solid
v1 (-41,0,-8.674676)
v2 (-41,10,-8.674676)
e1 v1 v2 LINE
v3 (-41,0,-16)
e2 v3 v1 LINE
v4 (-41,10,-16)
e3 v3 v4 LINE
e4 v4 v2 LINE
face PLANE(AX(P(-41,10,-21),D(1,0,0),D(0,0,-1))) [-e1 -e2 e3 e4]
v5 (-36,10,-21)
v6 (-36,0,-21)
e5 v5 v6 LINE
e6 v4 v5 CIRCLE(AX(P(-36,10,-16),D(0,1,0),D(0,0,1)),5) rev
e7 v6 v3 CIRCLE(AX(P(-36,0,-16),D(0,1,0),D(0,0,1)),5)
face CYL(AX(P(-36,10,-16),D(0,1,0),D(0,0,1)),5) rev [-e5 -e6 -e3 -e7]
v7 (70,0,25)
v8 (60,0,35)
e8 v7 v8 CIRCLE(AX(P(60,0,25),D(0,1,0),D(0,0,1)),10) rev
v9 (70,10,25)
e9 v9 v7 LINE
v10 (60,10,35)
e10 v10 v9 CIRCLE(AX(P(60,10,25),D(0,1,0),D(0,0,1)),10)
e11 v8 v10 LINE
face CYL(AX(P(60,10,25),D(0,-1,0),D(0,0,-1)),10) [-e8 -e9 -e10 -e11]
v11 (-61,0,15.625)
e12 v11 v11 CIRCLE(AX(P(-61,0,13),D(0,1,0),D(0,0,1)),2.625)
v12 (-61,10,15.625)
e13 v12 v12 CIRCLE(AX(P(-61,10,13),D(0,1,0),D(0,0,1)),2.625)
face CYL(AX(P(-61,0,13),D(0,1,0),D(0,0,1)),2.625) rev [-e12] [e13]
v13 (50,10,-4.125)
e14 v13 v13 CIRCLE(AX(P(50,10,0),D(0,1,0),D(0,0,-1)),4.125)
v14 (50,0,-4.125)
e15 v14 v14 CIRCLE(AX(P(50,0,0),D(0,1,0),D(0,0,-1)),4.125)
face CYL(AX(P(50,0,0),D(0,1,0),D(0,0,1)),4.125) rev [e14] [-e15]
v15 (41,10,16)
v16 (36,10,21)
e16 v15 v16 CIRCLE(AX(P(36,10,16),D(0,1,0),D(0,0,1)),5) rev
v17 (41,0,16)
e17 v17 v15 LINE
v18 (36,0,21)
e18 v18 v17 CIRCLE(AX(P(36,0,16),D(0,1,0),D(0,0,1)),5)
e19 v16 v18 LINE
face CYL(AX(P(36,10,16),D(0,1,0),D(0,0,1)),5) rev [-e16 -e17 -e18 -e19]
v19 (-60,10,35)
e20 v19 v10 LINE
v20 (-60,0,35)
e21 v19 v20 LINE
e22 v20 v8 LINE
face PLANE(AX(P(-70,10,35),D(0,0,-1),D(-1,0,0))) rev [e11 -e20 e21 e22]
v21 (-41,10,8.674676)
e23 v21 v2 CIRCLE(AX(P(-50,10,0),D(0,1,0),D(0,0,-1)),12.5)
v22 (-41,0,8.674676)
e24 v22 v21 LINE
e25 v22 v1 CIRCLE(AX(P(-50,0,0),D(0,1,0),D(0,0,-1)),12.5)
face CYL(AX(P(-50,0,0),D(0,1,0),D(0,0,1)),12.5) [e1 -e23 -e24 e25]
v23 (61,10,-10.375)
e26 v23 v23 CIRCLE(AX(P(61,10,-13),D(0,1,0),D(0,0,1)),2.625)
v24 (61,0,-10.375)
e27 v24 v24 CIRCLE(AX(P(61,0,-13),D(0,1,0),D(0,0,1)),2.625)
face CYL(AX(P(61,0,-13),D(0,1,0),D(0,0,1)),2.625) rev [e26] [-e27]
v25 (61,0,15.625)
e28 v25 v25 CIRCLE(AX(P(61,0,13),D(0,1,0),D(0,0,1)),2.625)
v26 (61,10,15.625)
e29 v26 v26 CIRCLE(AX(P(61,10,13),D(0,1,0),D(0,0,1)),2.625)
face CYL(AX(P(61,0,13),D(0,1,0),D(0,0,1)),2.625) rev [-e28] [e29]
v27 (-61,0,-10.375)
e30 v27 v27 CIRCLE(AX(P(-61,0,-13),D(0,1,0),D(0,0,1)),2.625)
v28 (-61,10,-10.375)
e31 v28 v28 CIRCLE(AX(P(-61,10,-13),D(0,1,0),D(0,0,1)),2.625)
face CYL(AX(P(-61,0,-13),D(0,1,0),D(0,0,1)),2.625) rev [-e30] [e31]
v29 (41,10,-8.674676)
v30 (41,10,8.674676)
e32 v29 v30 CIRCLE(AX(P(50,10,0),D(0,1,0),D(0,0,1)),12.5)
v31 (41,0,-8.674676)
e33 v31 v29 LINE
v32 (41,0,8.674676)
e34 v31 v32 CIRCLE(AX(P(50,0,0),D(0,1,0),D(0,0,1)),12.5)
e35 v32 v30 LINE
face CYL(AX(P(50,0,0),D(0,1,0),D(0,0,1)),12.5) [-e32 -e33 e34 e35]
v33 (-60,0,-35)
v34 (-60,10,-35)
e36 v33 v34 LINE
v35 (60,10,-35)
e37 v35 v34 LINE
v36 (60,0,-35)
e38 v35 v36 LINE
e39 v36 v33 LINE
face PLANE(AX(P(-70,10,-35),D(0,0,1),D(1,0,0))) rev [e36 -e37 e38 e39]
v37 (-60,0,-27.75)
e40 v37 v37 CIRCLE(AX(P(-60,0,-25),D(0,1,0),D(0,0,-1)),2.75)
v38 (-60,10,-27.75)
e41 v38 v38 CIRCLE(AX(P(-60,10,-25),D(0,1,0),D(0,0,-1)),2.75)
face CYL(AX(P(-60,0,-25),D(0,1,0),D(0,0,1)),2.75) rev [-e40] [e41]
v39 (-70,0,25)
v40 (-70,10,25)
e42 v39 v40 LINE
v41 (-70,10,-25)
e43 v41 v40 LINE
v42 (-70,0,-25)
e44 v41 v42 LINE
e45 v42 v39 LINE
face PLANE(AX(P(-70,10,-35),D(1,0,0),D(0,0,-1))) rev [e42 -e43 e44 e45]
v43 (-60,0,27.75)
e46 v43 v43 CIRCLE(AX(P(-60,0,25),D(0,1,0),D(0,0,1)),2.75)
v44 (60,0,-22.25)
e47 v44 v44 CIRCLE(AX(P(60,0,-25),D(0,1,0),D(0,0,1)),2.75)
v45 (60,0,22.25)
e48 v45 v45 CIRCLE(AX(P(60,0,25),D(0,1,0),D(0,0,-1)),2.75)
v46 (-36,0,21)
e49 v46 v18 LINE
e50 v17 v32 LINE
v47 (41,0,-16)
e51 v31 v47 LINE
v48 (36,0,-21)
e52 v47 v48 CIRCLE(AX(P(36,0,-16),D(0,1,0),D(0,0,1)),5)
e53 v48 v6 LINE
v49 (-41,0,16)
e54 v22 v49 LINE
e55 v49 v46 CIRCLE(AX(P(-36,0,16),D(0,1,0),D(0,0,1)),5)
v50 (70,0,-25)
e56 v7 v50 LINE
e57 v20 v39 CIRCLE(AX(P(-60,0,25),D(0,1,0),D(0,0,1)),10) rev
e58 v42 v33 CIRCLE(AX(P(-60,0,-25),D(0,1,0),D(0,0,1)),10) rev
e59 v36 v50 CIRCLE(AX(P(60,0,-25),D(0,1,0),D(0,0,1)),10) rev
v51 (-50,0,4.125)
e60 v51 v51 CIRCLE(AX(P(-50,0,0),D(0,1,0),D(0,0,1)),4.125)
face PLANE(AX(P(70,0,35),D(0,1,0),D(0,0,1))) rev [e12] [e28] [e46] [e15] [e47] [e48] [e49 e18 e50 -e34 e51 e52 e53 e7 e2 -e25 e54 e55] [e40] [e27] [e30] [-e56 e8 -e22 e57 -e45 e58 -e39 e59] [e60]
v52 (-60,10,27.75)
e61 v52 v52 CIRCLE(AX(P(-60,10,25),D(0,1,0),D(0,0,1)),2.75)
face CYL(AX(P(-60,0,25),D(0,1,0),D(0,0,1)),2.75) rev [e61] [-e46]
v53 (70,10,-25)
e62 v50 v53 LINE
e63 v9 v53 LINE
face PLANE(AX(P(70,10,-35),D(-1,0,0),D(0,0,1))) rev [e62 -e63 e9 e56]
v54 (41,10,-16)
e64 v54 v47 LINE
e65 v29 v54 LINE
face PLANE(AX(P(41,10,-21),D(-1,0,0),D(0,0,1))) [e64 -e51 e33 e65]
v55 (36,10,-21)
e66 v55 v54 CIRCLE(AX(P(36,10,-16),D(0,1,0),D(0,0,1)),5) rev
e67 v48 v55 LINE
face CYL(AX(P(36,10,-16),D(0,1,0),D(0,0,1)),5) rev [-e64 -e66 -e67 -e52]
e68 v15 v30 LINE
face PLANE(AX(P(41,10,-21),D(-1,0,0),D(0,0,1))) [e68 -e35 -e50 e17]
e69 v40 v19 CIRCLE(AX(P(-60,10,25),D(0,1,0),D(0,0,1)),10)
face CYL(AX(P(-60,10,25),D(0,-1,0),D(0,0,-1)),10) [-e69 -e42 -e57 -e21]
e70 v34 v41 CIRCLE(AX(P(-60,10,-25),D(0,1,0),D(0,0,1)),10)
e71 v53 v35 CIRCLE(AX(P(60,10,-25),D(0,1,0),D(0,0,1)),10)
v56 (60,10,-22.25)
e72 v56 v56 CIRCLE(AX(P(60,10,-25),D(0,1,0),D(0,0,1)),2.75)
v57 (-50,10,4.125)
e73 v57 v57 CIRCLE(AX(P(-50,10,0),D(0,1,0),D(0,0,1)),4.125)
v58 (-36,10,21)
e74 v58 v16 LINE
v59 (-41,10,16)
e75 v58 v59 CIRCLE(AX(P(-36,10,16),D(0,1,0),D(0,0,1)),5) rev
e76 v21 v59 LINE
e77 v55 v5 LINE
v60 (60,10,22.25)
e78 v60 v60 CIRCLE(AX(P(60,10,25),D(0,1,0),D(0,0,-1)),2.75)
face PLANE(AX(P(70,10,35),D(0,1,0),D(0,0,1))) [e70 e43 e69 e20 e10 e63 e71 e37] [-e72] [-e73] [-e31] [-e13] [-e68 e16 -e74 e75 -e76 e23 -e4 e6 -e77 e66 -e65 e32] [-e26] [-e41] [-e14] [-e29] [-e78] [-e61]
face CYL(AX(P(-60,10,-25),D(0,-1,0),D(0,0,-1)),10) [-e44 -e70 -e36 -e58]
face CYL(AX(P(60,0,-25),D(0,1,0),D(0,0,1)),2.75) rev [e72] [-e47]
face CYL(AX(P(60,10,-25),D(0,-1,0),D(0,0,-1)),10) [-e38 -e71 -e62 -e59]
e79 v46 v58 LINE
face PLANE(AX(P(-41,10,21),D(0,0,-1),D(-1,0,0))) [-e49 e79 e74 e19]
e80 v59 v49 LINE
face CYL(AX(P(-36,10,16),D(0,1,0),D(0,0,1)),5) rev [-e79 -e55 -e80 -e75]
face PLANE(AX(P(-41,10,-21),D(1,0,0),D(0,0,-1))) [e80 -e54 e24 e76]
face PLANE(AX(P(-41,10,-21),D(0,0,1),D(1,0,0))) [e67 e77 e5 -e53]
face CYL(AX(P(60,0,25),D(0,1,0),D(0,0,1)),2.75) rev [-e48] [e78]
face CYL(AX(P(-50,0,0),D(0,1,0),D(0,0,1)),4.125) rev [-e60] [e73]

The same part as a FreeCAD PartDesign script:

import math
import FreeCAD as App
import Part
import Sketcher


def edges_at(feature, points):
    """Names of the edges that pass closest to the given points."""
    edges = feature.Shape.Edges
    near = lambda p: min(range(len(edges)), key=lambda i: edges[i].distToShape(Part.Vertex(*p))[0])
    return sorted({f"Edge{near(p) + 1}" for p in points})

doc = App.newDocument("Part")
body = doc.addObject("PartDesign::Body", "Body")

sketch1 = body.newObject("Sketcher::SketchObject", "Sketch")
sketch1.AttachmentSupport = (doc.getObject("XZ_Plane"), [""])
sketch1.MapMode = "FlatFace"
sketch1.addGeometry(Part.LineSegment(App.Vector(-70, -35, 0), App.Vector(-70, 35, 0)), False)
sketch1.addGeometry(Part.LineSegment(App.Vector(-70, 35, 0), App.Vector(70, 35, 0)), False)
sketch1.addGeometry(Part.LineSegment(App.Vector(70, 35, 0), App.Vector(70, -35, 0)), False)
sketch1.addGeometry(Part.LineSegment(App.Vector(70, -35, 0), App.Vector(-70, -35, 0)), False)
sketch1.addGeometry(Part.LineSegment(App.Vector(41, 21, 0), App.Vector(-41, 21, 0)), False)
sketch1.addGeometry(Part.LineSegment(App.Vector(-41, 21, 0), App.Vector(-41, -21, 0)), False)
sketch1.addGeometry(Part.LineSegment(App.Vector(-41, -21, 0), App.Vector(41, -21, 0)), False)
sketch1.addGeometry(Part.LineSegment(App.Vector(41, -21, 0), App.Vector(41, 21, 0)), False)
sketch1.addConstraint(Sketcher.Constraint("Coincident", 0, 2, 1, 1))
sketch1.addConstraint(Sketcher.Constraint("Coincident", 1, 2, 2, 1))
sketch1.addConstraint(Sketcher.Constraint("Coincident", 2, 2, 3, 1))
sketch1.addConstraint(Sketcher.Constraint("Coincident", 3, 2, 0, 1))
sketch1.addConstraint(Sketcher.Constraint("Coincident", 4, 2, 5, 1))
sketch1.addConstraint(Sketcher.Constraint("Coincident", 5, 2, 6, 1))
sketch1.addConstraint(Sketcher.Constraint("Coincident", 6, 2, 7, 1))
sketch1.addConstraint(Sketcher.Constraint("Coincident", 7, 2, 4, 1))
sketch1.addConstraint(Sketcher.Constraint("Vertical", 0))
sketch1.addConstraint(Sketcher.Constraint("Horizontal", 1))
sketch1.addConstraint(Sketcher.Constraint("Vertical", 2))
sketch1.addConstraint(Sketcher.Constraint("Horizontal", 3))
sketch1.addConstraint(Sketcher.Constraint("Horizontal", 4))
sketch1.addConstraint(Sketcher.Constraint("Vertical", 5))
sketch1.addConstraint(Sketcher.Constraint("Horizontal", 6))
sketch1.addConstraint(Sketcher.Constraint("Vertical", 7))
sketch1.addConstraint(Sketcher.Constraint("Symmetric", 0, 2, 2, 2, -1, 1))
sketch1.addConstraint(Sketcher.Constraint("Symmetric", 4, 2, 6, 2, -1, 1))
sketch1.addConstraint(Sketcher.Constraint("DistanceX", 1, 1, 1, 2, 140.0))
sketch1.addConstraint(Sketcher.Constraint("DistanceX", 4, 2, 4, 1, 82.0))
sketch1.addConstraint(Sketcher.Constraint("DistanceY", 0, 1, 0, 2, 70.0))
sketch1.addConstraint(Sketcher.Constraint("DistanceY", 5, 2, 5, 1, 42.0))
pad1 = body.newObject("PartDesign::Pad", "Pad")
pad1.Profile = sketch1
pad1.Length = 10
pad1.Reversed = True
doc.recompute()

fillet = body.newObject("PartDesign::Fillet", "Fillet")
fillet.Base = (pad1, edges_at(pad1, [
    (70, 5, 35),
    (-70, 5, 35),
    (-70, 5, -35),
    (70, 5, -35),
]))
fillet.Radius = 10

sketch2 = body.newObject("Sketcher::SketchObject", "Sketch001")
sketch2.AttachmentSupport = (doc.getObject("XZ_Plane"), [""])
sketch2.MapMode = "FlatFace"
sketch2.AttachmentOffset = App.Placement(App.Vector(0, 0, -10), App.Rotation())
sketch2.addGeometry(Part.Circle(App.Vector(-60, 25, 0), App.Vector(0, 0, 1), 2.8), False)
sketch2.addGeometry(Part.Circle(App.Vector(-60, -25, 0), App.Vector(0, 0, 1), 2.8), False)
sketch2.addGeometry(Part.Circle(App.Vector(60, 25, 0), App.Vector(0, 0, 1), 2.8), False)
sketch2.addGeometry(Part.Circle(App.Vector(60, -25, 0), App.Vector(0, 0, 1), 2.8), False)
sketch2.addConstraint(Sketcher.Constraint("Equal", 0, 1))
sketch2.addConstraint(Sketcher.Constraint("Equal", 1, 2))
sketch2.addConstraint(Sketcher.Constraint("Equal", 2, 3))
sketch2.addConstraint(Sketcher.Constraint("Symmetric", 1, 3, 2, 3, -1, 1))
sketch2.addConstraint(Sketcher.Constraint("Symmetric", 0, 3, 3, 3, -1, 1))
sketch2.addConstraint(Sketcher.Constraint("Symmetric", 0, 3, 2, 3, -2))
sketch2.addConstraint(Sketcher.Constraint("Diameter", 0, 5.5))
sketch2.addConstraint(Sketcher.Constraint("DistanceX", 0, 3, -1, 1, 60.0))
sketch2.addConstraint(Sketcher.Constraint("DistanceY", -1, 1, 0, 3, 25.0))
pocket1 = body.newObject("PartDesign::Pocket", "Pocket")
pocket1.Profile = sketch2
pocket1.Type = "ThroughAll"
pocket1.Reversed = True

sketch3 = body.newObject("Sketcher::SketchObject", "Sketch002")
sketch3.AttachmentSupport = (doc.getObject("XZ_Plane"), [""])
sketch3.MapMode = "FlatFace"
sketch3.AttachmentOffset = App.Placement(App.Vector(0, 0, -10), App.Rotation())
sketch3.addGeometry(Part.Circle(App.Vector(-50, 0, 0), App.Vector(0, 0, 1), 4.1), False)
sketch3.addGeometry(Part.Circle(App.Vector(50, 0, 0), App.Vector(0, 0, 1), 4.1), False)
sketch3.addConstraint(Sketcher.Constraint("Equal", 0, 1))
sketch3.addConstraint(Sketcher.Constraint("Symmetric", 0, 3, 1, 3, -1, 1))
sketch3.addConstraint(Sketcher.Constraint("PointOnObject", 0, 3, -1))
sketch3.addConstraint(Sketcher.Constraint("Diameter", 0, 8.25))
sketch3.addConstraint(Sketcher.Constraint("DistanceX", 0, 3, -1, 1, 50.0))
pocket2 = body.newObject("PartDesign::Pocket", "Pocket001")
pocket2.Profile = sketch3
pocket2.Type = "ThroughAll"
pocket2.Reversed = True

sketch4 = body.newObject("Sketcher::SketchObject", "Sketch003")
sketch4.AttachmentSupport = (doc.getObject("XZ_Plane"), [""])
sketch4.MapMode = "FlatFace"
sketch4.AttachmentOffset = App.Placement(App.Vector(0, 0, -10), App.Rotation())
sketch4.addGeometry(Part.LineSegment(App.Vector(-41, -9, 0), App.Vector(-41, 9, 0)), False)
sketch4.addGeometry(Part.ArcOfCircle(Part.Circle(App.Vector(-50, 0, 0), App.Vector(0, 0, 1), 12), math.radians(-44), math.radians(44)), False)
sketch4.addGeometry(Part.LineSegment(App.Vector(41, 9, 0), App.Vector(41, -9, 0)), False)
sketch4.addGeometry(Part.ArcOfCircle(Part.Circle(App.Vector(50, 0, 0), App.Vector(0, 0, 1), 12), math.radians(136), math.radians(224)), False)
sketch4.addConstraint(Sketcher.Constraint("Coincident", 0, 1, 1, 1))
sketch4.addConstraint(Sketcher.Constraint("Coincident", 1, 2, 0, 2))
sketch4.addConstraint(Sketcher.Constraint("Coincident", 2, 1, 3, 1))
sketch4.addConstraint(Sketcher.Constraint("Coincident", 3, 2, 2, 2))
sketch4.addConstraint(Sketcher.Constraint("Vertical", 0))
sketch4.addConstraint(Sketcher.Constraint("Vertical", 2))
sketch4.addConstraint(Sketcher.Constraint("Equal", 1, 3))
sketch4.addConstraint(Sketcher.Constraint("Symmetric", 1, 3, 3, 3, -1, 1))
sketch4.addConstraint(Sketcher.Constraint("Symmetric", 1, 2, 2, 1, -2))
sketch4.addConstraint(Sketcher.Constraint("Radius", 1, 12.5))
sketch4.addConstraint(Sketcher.Constraint("DistanceX", 1, 3, -1, 1, 50.0))
sketch4.addConstraint(Sketcher.Constraint("DistanceX", 0, 1, -1, 1, 41.0))
pad2 = body.newObject("PartDesign::Pad", "Pad001")
pad2.Profile = sketch4
pad2.Length = 10
doc.recompute()

fillet2 = body.newObject("PartDesign::Fillet", "Fillet001")
fillet2.Base = (pad2, edges_at(pad2, [
    (41, 5, 21),
    (41, 5, -21),
    (-41, 5, -21),
    (-41, 5, 21),
]))
fillet2.Radius = 5

sketch5 = body.newObject("Sketcher::SketchObject", "Sketch004")
sketch5.AttachmentSupport = (doc.getObject("XZ_Plane"), [""])
sketch5.MapMode = "FlatFace"
sketch5.AttachmentOffset = App.Placement(App.Vector(0, 0, -10), App.Rotation())
sketch5.addGeometry(Part.Circle(App.Vector(-61, -13, 0), App.Vector(0, 0, 1), 2.6), False)
sketch5.addGeometry(Part.Circle(App.Vector(-61, 13, 0), App.Vector(0, 0, 1), 2.6), False)
sketch5.addGeometry(Part.Circle(App.Vector(61, -13, 0), App.Vector(0, 0, 1), 2.6), False)
sketch5.addGeometry(Part.Circle(App.Vector(61, 13, 0), App.Vector(0, 0, 1), 2.6), False)
sketch5.addConstraint(Sketcher.Constraint("Equal", 0, 1))
sketch5.addConstraint(Sketcher.Constraint("Equal", 1, 2))
sketch5.addConstraint(Sketcher.Constraint("Equal", 2, 3))
sketch5.addConstraint(Sketcher.Constraint("Symmetric", 1, 3, 2, 3, -1, 1))
sketch5.addConstraint(Sketcher.Constraint("Symmetric", 0, 3, 3, 3, -1, 1))
sketch5.addConstraint(Sketcher.Constraint("Symmetric", 0, 3, 2, 3, -2))
sketch5.addConstraint(Sketcher.Constraint("Diameter", 0, 5.25))
sketch5.addConstraint(Sketcher.Constraint("DistanceX", 0, 3, -1, 1, 61.0))
sketch5.addConstraint(Sketcher.Constraint("DistanceY", 0, 3, -1, 1, 13.0))
pocket3 = body.newObject("PartDesign::Pocket", "Pocket002")
pocket3.Profile = sketch5
pocket3.Type = "ThroughAll"
pocket3.Reversed = True

doc.recompute()
